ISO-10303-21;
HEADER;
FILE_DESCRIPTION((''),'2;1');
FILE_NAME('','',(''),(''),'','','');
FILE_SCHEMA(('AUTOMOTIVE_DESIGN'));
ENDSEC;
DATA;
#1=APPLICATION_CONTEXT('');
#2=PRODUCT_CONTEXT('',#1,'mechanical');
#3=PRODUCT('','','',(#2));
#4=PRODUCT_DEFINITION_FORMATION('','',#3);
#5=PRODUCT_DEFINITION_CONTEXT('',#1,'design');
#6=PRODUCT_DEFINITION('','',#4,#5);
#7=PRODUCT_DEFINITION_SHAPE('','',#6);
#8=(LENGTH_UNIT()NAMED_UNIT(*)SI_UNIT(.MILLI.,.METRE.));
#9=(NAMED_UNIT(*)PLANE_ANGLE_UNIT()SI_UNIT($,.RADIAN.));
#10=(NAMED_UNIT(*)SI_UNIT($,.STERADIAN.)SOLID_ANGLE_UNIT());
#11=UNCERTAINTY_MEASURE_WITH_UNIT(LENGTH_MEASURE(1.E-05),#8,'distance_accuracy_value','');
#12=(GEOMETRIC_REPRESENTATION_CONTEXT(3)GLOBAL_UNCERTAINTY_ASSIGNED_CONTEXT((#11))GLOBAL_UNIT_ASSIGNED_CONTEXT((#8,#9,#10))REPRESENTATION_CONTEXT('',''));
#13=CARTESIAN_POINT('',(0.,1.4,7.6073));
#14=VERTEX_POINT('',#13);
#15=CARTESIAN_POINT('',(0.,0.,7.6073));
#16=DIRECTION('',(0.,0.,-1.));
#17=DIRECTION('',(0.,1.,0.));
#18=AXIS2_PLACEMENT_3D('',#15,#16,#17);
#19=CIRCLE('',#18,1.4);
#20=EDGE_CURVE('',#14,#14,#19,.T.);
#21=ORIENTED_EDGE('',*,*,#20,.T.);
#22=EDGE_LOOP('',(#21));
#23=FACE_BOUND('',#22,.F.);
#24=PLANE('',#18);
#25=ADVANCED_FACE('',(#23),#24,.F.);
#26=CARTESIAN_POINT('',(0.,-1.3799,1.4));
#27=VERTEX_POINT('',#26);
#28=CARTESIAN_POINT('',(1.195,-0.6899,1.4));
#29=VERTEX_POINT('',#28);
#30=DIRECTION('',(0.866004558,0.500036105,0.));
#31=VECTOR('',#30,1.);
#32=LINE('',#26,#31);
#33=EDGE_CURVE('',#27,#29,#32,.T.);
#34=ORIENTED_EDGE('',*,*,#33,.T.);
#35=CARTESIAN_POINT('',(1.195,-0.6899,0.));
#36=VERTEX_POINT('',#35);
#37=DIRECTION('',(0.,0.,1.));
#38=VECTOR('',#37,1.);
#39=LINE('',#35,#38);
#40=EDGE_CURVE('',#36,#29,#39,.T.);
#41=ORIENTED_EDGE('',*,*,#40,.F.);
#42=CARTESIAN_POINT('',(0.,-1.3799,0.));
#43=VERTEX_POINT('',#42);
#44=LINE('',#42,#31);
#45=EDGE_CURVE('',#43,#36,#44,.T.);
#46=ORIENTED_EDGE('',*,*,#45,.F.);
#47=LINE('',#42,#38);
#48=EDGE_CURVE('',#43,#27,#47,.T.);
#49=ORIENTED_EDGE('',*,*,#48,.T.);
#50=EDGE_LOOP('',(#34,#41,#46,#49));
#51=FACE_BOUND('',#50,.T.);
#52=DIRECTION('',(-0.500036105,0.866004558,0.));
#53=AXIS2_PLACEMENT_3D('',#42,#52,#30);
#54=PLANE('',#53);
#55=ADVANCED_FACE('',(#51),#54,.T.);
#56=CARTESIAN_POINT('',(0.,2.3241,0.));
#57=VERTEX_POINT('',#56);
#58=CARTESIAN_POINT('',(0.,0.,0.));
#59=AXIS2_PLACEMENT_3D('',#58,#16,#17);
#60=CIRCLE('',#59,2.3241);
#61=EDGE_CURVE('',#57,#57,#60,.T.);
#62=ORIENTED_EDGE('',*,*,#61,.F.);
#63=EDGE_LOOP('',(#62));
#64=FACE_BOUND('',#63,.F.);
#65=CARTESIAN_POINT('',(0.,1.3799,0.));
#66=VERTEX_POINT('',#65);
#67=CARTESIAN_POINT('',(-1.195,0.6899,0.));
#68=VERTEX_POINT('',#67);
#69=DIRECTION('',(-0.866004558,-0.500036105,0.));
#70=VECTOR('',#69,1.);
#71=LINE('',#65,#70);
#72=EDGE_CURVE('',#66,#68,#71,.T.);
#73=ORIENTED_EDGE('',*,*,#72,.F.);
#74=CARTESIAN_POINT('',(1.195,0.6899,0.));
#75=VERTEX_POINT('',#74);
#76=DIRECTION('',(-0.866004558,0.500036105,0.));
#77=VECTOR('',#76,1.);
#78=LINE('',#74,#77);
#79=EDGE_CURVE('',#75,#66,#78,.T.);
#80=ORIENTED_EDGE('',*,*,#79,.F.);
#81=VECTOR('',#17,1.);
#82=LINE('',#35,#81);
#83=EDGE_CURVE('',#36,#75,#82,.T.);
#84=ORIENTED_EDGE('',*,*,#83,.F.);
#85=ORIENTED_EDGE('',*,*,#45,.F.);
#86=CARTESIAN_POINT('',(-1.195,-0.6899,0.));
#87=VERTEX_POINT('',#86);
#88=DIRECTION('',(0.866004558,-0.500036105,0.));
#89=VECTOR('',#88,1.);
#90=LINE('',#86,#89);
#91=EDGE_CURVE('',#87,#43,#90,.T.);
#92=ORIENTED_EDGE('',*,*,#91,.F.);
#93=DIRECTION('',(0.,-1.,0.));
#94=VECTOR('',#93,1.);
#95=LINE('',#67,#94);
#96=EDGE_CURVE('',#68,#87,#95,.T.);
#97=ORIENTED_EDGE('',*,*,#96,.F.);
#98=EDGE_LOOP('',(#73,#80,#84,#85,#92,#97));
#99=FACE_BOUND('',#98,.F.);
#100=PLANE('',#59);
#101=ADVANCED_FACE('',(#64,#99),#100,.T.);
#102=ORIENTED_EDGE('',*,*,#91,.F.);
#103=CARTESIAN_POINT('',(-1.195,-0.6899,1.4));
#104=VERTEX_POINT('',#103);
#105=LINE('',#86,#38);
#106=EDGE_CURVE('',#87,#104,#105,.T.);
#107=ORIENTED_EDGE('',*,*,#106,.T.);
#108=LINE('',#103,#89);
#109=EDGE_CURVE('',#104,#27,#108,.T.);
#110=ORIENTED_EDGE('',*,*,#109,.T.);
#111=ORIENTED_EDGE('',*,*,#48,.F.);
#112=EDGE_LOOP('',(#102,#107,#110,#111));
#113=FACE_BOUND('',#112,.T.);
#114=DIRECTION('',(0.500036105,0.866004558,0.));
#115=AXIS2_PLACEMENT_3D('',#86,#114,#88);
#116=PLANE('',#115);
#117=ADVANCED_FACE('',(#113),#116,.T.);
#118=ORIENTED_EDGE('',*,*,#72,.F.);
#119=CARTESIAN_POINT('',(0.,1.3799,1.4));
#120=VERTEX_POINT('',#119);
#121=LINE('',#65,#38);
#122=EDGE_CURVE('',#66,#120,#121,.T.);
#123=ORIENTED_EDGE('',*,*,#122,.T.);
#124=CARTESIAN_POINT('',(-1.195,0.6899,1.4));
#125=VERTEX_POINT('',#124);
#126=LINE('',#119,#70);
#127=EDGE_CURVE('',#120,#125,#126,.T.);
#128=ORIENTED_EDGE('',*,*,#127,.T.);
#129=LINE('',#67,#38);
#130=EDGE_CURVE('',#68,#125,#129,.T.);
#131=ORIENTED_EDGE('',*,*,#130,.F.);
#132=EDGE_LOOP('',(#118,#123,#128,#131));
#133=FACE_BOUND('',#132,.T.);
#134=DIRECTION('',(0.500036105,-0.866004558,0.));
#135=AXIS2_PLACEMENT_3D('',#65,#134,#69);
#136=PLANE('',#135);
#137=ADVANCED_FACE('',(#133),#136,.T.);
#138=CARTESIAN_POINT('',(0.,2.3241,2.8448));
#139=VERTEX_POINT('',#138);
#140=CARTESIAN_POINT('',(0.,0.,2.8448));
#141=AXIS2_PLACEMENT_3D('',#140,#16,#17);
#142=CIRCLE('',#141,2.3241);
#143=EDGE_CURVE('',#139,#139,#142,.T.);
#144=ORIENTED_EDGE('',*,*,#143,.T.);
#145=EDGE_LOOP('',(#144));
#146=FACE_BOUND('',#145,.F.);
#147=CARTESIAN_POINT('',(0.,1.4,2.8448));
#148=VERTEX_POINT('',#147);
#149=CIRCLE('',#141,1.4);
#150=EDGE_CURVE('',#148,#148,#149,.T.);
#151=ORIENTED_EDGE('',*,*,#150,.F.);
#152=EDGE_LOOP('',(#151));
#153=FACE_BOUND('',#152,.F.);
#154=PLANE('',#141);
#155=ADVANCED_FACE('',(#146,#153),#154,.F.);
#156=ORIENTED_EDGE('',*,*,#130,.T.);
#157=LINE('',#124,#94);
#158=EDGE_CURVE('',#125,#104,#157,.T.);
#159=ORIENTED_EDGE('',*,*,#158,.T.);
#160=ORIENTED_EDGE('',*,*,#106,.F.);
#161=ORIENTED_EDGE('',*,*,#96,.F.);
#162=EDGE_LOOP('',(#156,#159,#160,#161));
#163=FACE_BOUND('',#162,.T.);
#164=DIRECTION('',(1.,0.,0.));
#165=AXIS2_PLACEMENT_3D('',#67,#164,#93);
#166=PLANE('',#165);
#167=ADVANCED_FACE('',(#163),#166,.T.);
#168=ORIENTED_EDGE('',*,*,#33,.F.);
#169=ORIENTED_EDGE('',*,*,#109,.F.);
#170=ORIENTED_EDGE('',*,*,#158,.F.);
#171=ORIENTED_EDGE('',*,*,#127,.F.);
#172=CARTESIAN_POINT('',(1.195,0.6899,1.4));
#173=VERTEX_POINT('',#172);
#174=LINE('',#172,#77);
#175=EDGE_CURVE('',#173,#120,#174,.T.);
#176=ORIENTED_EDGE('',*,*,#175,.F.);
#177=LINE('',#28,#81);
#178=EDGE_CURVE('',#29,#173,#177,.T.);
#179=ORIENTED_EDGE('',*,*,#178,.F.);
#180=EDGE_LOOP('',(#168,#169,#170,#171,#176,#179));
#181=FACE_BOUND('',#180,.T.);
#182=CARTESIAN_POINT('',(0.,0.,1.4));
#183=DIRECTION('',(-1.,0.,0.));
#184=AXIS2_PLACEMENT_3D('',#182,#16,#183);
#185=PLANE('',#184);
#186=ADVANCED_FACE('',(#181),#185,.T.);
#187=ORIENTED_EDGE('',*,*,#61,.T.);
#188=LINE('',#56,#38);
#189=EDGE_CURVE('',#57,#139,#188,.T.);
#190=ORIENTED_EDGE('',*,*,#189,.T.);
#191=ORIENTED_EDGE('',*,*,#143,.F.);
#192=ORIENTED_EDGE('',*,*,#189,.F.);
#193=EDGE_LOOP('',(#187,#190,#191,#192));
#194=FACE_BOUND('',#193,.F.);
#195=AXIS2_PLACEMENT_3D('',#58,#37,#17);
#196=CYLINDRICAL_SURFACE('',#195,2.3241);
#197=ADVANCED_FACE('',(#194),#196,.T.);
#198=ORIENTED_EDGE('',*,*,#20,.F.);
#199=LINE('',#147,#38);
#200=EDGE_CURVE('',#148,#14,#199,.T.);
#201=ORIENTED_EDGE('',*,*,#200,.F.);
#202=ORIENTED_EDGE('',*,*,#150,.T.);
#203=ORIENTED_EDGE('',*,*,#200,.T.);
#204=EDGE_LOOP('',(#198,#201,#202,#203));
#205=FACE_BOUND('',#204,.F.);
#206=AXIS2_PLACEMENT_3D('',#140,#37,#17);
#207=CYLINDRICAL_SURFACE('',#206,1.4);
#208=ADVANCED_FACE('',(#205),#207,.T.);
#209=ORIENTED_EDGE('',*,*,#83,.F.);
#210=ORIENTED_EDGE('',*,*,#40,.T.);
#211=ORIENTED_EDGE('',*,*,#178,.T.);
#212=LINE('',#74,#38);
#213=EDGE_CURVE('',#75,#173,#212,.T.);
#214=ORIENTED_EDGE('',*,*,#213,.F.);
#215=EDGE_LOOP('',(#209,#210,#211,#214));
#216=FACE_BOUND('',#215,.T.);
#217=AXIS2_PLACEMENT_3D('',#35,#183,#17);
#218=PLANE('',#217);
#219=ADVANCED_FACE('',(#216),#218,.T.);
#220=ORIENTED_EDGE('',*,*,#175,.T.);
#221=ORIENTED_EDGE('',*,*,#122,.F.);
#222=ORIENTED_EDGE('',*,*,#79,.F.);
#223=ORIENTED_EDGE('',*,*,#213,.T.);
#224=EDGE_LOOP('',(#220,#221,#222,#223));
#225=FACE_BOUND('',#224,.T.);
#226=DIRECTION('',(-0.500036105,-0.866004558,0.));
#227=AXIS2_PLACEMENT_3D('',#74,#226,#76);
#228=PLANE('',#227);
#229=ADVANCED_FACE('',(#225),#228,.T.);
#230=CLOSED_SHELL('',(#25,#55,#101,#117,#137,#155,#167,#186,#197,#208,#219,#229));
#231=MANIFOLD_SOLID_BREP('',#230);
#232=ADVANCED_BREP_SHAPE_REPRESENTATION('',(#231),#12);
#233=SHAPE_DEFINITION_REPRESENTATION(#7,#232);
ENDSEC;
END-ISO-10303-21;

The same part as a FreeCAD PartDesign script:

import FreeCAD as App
import Part
import Sketcher
Q = App.Units.Quantity

doc = App.newDocument("Part")
body = doc.addObject("PartDesign::Body", "Body")

sketch1 = body.newObject("Sketcher::SketchObject", "Sketch")
sketch1.AttachmentSupport = (doc.getObject("YZ_Plane"), [""])
sketch1.MapMode = "FlatFace"
sketch1.addGeometry(Part.LineSegment(App.Vector(1.4, 7.6, 0), App.Vector(0, 7.6, 0)), False)
sketch1.addGeometry(Part.LineSegment(App.Vector(0, 7.6, 0), App.Vector(0, 0, 0)), False)
sketch1.addGeometry(Part.LineSegment(App.Vector(0, 0, 0), App.Vector(2.3, 0, 0)), False)
sketch1.addGeometry(Part.LineSegment(App.Vector(2.3, 0, 0), App.Vector(2.3, 2.8, 0)), False)
sketch1.addGeometry(Part.LineSegment(App.Vector(2.3, 2.8, 0), App.Vector(1.4, 2.8, 0)), False)
sketch1.addGeometry(Part.LineSegment(App.Vector(1.4, 2.8, 0), App.Vector(1.4, 7.6, 0)), False)
sketch1.addConstraint(Sketcher.Constraint("Coincident", 0, 2, 1, 1))
sketch1.addConstraint(Sketcher.Constraint("Coincident", 1, 2, 2, 1))
sketch1.addConstraint(Sketcher.Constraint("Coincident", 2, 2, 3, 1))
sketch1.addConstraint(Sketcher.Constraint("Coincident", 3, 2, 4, 1))
sketch1.addConstraint(Sketcher.Constraint("Coincident", 4, 2, 5, 1))
sketch1.addConstraint(Sketcher.Constraint("Coincident", 5, 2, 0, 1))
sketch1.addConstraint(Sketcher.Constraint("Horizontal", 0))
sketch1.addConstraint(Sketcher.Constraint("Vertical", 1))
sketch1.addConstraint(Sketcher.Constraint("Horizontal", 2))
sketch1.addConstraint(Sketcher.Constraint("Vertical", 3))
sketch1.addConstraint(Sketcher.Constraint("Horizontal", 4))
sketch1.addConstraint(Sketcher.Constraint("Vertical", 5))
sketch1.addConstraint(Sketcher.Constraint("Coincident", 1, 2, -1, 1))
sketch1.addConstraint(Sketcher.Constraint("DistanceY", 3, 1, 3, 2, Q("0.112 in")))
sketch1.addConstraint(Sketcher.Constraint("DistanceY", 5, 1, 5, 2, Q("0.1875 in")))
sketch1.addConstraint(Sketcher.Constraint("DistanceX", 2, 1, 2, 2, Q("0.0915 in")))
sketch1.addConstraint(Sketcher.Constraint("DistanceX", 0, 2, 0, 1, Q("1.4 mm")))
revolution = body.newObject("PartDesign::Revolution", "Revolution")
revolution.Profile = sketch1
revolution.ReferenceAxis = (sketch1, ["V_Axis"])
revolution.Angle = 360

sketch2 = body.newObject("Sketcher::SketchObject", "Sketch001")
sketch2.AttachmentSupport = (doc.getObject("XY_Plane"), [""])
sketch2.MapMode = "FlatFace"
sketch2.addGeometry(Part.LineSegment(App.Vector(-1.2, 0.7, 0), App.Vector(0, 1.4, 0)), False)
sketch2.addGeometry(Part.LineSegment(App.Vector(0, 1.4, 0), App.Vector(1.2, 0.7, 0)), False)
sketch2.addGeometry(Part.LineSegment(App.Vector(1.2, 0.7, 0), App.Vector(1.2, -0.7, 0)), False)
sketch2.addGeometry(Part.LineSegment(App.Vector(1.2, -0.7, 0), App.Vector(0, -1.4, 0)), False)
sketch2.addGeometry(Part.LineSegment(App.Vector(0, -1.4, 0), App.Vector(-1.2, -0.7, 0)), False)
sketch2.addGeometry(Part.LineSegment(App.Vector(-1.2, -0.7, 0), App.Vector(-1.2, 0.7, 0)), False)
sketch2.addConstraint(Sketcher.Constraint("Coincident", 0, 2, 1, 1))
sketch2.addConstraint(Sketcher.Constraint("Coincident", 1, 2, 2, 1))
sketch2.addConstraint(Sketcher.Constraint("Coincident", 2, 2, 3, 1))
sketch2.addConstraint(Sketcher.Constraint("Coincident", 3, 2, 4, 1))
sketch2.addConstraint(Sketcher.Constraint("Coincident", 4, 2, 5, 1))
sketch2.addConstraint(Sketcher.Constraint("Coincident", 5, 2, 0, 1))
sketch2.addConstraint(Sketcher.Constraint("Vertical", 2))
sketch2.addConstraint(Sketcher.Constraint("Vertical", 5))
sketch2.addConstraint(Sketcher.Constraint("Symmetric", 0, 2, 3, 2, -1, 1))
sketch2.addConstraint(Sketcher.Constraint("Symmetric", 1, 2, 4, 2, -1, 1))
sketch2.addConstraint(Sketcher.Constraint("PointOnObject", 0, 2, -2))
sketch2.addConstraint(Sketcher.Constraint("Parallel", 0, 3))
sketch2.addConstraint(Sketcher.Constraint("Horizontal", 2, 2, 4, 2))
sketch2.addConstraint(Sketcher.Constraint("DistanceX", 4, 2, 2, 2, Q("0.0941 in")))
sketch2.addConstraint(Sketcher.Constraint("DistanceY", 2, 2, 2, 1, Q("1.3798 mm")))
sketch2.addConstraint(Sketcher.Constraint("DistanceY", 2, 2, 0, 2, Q("0.0815 in")))
pocket1 = body.newObject("PartDesign::Pocket", "Pocket")
pocket1.Profile = sketch2
pocket1.Length = 1.4
pocket1.Reversed = True

doc.recompute()
